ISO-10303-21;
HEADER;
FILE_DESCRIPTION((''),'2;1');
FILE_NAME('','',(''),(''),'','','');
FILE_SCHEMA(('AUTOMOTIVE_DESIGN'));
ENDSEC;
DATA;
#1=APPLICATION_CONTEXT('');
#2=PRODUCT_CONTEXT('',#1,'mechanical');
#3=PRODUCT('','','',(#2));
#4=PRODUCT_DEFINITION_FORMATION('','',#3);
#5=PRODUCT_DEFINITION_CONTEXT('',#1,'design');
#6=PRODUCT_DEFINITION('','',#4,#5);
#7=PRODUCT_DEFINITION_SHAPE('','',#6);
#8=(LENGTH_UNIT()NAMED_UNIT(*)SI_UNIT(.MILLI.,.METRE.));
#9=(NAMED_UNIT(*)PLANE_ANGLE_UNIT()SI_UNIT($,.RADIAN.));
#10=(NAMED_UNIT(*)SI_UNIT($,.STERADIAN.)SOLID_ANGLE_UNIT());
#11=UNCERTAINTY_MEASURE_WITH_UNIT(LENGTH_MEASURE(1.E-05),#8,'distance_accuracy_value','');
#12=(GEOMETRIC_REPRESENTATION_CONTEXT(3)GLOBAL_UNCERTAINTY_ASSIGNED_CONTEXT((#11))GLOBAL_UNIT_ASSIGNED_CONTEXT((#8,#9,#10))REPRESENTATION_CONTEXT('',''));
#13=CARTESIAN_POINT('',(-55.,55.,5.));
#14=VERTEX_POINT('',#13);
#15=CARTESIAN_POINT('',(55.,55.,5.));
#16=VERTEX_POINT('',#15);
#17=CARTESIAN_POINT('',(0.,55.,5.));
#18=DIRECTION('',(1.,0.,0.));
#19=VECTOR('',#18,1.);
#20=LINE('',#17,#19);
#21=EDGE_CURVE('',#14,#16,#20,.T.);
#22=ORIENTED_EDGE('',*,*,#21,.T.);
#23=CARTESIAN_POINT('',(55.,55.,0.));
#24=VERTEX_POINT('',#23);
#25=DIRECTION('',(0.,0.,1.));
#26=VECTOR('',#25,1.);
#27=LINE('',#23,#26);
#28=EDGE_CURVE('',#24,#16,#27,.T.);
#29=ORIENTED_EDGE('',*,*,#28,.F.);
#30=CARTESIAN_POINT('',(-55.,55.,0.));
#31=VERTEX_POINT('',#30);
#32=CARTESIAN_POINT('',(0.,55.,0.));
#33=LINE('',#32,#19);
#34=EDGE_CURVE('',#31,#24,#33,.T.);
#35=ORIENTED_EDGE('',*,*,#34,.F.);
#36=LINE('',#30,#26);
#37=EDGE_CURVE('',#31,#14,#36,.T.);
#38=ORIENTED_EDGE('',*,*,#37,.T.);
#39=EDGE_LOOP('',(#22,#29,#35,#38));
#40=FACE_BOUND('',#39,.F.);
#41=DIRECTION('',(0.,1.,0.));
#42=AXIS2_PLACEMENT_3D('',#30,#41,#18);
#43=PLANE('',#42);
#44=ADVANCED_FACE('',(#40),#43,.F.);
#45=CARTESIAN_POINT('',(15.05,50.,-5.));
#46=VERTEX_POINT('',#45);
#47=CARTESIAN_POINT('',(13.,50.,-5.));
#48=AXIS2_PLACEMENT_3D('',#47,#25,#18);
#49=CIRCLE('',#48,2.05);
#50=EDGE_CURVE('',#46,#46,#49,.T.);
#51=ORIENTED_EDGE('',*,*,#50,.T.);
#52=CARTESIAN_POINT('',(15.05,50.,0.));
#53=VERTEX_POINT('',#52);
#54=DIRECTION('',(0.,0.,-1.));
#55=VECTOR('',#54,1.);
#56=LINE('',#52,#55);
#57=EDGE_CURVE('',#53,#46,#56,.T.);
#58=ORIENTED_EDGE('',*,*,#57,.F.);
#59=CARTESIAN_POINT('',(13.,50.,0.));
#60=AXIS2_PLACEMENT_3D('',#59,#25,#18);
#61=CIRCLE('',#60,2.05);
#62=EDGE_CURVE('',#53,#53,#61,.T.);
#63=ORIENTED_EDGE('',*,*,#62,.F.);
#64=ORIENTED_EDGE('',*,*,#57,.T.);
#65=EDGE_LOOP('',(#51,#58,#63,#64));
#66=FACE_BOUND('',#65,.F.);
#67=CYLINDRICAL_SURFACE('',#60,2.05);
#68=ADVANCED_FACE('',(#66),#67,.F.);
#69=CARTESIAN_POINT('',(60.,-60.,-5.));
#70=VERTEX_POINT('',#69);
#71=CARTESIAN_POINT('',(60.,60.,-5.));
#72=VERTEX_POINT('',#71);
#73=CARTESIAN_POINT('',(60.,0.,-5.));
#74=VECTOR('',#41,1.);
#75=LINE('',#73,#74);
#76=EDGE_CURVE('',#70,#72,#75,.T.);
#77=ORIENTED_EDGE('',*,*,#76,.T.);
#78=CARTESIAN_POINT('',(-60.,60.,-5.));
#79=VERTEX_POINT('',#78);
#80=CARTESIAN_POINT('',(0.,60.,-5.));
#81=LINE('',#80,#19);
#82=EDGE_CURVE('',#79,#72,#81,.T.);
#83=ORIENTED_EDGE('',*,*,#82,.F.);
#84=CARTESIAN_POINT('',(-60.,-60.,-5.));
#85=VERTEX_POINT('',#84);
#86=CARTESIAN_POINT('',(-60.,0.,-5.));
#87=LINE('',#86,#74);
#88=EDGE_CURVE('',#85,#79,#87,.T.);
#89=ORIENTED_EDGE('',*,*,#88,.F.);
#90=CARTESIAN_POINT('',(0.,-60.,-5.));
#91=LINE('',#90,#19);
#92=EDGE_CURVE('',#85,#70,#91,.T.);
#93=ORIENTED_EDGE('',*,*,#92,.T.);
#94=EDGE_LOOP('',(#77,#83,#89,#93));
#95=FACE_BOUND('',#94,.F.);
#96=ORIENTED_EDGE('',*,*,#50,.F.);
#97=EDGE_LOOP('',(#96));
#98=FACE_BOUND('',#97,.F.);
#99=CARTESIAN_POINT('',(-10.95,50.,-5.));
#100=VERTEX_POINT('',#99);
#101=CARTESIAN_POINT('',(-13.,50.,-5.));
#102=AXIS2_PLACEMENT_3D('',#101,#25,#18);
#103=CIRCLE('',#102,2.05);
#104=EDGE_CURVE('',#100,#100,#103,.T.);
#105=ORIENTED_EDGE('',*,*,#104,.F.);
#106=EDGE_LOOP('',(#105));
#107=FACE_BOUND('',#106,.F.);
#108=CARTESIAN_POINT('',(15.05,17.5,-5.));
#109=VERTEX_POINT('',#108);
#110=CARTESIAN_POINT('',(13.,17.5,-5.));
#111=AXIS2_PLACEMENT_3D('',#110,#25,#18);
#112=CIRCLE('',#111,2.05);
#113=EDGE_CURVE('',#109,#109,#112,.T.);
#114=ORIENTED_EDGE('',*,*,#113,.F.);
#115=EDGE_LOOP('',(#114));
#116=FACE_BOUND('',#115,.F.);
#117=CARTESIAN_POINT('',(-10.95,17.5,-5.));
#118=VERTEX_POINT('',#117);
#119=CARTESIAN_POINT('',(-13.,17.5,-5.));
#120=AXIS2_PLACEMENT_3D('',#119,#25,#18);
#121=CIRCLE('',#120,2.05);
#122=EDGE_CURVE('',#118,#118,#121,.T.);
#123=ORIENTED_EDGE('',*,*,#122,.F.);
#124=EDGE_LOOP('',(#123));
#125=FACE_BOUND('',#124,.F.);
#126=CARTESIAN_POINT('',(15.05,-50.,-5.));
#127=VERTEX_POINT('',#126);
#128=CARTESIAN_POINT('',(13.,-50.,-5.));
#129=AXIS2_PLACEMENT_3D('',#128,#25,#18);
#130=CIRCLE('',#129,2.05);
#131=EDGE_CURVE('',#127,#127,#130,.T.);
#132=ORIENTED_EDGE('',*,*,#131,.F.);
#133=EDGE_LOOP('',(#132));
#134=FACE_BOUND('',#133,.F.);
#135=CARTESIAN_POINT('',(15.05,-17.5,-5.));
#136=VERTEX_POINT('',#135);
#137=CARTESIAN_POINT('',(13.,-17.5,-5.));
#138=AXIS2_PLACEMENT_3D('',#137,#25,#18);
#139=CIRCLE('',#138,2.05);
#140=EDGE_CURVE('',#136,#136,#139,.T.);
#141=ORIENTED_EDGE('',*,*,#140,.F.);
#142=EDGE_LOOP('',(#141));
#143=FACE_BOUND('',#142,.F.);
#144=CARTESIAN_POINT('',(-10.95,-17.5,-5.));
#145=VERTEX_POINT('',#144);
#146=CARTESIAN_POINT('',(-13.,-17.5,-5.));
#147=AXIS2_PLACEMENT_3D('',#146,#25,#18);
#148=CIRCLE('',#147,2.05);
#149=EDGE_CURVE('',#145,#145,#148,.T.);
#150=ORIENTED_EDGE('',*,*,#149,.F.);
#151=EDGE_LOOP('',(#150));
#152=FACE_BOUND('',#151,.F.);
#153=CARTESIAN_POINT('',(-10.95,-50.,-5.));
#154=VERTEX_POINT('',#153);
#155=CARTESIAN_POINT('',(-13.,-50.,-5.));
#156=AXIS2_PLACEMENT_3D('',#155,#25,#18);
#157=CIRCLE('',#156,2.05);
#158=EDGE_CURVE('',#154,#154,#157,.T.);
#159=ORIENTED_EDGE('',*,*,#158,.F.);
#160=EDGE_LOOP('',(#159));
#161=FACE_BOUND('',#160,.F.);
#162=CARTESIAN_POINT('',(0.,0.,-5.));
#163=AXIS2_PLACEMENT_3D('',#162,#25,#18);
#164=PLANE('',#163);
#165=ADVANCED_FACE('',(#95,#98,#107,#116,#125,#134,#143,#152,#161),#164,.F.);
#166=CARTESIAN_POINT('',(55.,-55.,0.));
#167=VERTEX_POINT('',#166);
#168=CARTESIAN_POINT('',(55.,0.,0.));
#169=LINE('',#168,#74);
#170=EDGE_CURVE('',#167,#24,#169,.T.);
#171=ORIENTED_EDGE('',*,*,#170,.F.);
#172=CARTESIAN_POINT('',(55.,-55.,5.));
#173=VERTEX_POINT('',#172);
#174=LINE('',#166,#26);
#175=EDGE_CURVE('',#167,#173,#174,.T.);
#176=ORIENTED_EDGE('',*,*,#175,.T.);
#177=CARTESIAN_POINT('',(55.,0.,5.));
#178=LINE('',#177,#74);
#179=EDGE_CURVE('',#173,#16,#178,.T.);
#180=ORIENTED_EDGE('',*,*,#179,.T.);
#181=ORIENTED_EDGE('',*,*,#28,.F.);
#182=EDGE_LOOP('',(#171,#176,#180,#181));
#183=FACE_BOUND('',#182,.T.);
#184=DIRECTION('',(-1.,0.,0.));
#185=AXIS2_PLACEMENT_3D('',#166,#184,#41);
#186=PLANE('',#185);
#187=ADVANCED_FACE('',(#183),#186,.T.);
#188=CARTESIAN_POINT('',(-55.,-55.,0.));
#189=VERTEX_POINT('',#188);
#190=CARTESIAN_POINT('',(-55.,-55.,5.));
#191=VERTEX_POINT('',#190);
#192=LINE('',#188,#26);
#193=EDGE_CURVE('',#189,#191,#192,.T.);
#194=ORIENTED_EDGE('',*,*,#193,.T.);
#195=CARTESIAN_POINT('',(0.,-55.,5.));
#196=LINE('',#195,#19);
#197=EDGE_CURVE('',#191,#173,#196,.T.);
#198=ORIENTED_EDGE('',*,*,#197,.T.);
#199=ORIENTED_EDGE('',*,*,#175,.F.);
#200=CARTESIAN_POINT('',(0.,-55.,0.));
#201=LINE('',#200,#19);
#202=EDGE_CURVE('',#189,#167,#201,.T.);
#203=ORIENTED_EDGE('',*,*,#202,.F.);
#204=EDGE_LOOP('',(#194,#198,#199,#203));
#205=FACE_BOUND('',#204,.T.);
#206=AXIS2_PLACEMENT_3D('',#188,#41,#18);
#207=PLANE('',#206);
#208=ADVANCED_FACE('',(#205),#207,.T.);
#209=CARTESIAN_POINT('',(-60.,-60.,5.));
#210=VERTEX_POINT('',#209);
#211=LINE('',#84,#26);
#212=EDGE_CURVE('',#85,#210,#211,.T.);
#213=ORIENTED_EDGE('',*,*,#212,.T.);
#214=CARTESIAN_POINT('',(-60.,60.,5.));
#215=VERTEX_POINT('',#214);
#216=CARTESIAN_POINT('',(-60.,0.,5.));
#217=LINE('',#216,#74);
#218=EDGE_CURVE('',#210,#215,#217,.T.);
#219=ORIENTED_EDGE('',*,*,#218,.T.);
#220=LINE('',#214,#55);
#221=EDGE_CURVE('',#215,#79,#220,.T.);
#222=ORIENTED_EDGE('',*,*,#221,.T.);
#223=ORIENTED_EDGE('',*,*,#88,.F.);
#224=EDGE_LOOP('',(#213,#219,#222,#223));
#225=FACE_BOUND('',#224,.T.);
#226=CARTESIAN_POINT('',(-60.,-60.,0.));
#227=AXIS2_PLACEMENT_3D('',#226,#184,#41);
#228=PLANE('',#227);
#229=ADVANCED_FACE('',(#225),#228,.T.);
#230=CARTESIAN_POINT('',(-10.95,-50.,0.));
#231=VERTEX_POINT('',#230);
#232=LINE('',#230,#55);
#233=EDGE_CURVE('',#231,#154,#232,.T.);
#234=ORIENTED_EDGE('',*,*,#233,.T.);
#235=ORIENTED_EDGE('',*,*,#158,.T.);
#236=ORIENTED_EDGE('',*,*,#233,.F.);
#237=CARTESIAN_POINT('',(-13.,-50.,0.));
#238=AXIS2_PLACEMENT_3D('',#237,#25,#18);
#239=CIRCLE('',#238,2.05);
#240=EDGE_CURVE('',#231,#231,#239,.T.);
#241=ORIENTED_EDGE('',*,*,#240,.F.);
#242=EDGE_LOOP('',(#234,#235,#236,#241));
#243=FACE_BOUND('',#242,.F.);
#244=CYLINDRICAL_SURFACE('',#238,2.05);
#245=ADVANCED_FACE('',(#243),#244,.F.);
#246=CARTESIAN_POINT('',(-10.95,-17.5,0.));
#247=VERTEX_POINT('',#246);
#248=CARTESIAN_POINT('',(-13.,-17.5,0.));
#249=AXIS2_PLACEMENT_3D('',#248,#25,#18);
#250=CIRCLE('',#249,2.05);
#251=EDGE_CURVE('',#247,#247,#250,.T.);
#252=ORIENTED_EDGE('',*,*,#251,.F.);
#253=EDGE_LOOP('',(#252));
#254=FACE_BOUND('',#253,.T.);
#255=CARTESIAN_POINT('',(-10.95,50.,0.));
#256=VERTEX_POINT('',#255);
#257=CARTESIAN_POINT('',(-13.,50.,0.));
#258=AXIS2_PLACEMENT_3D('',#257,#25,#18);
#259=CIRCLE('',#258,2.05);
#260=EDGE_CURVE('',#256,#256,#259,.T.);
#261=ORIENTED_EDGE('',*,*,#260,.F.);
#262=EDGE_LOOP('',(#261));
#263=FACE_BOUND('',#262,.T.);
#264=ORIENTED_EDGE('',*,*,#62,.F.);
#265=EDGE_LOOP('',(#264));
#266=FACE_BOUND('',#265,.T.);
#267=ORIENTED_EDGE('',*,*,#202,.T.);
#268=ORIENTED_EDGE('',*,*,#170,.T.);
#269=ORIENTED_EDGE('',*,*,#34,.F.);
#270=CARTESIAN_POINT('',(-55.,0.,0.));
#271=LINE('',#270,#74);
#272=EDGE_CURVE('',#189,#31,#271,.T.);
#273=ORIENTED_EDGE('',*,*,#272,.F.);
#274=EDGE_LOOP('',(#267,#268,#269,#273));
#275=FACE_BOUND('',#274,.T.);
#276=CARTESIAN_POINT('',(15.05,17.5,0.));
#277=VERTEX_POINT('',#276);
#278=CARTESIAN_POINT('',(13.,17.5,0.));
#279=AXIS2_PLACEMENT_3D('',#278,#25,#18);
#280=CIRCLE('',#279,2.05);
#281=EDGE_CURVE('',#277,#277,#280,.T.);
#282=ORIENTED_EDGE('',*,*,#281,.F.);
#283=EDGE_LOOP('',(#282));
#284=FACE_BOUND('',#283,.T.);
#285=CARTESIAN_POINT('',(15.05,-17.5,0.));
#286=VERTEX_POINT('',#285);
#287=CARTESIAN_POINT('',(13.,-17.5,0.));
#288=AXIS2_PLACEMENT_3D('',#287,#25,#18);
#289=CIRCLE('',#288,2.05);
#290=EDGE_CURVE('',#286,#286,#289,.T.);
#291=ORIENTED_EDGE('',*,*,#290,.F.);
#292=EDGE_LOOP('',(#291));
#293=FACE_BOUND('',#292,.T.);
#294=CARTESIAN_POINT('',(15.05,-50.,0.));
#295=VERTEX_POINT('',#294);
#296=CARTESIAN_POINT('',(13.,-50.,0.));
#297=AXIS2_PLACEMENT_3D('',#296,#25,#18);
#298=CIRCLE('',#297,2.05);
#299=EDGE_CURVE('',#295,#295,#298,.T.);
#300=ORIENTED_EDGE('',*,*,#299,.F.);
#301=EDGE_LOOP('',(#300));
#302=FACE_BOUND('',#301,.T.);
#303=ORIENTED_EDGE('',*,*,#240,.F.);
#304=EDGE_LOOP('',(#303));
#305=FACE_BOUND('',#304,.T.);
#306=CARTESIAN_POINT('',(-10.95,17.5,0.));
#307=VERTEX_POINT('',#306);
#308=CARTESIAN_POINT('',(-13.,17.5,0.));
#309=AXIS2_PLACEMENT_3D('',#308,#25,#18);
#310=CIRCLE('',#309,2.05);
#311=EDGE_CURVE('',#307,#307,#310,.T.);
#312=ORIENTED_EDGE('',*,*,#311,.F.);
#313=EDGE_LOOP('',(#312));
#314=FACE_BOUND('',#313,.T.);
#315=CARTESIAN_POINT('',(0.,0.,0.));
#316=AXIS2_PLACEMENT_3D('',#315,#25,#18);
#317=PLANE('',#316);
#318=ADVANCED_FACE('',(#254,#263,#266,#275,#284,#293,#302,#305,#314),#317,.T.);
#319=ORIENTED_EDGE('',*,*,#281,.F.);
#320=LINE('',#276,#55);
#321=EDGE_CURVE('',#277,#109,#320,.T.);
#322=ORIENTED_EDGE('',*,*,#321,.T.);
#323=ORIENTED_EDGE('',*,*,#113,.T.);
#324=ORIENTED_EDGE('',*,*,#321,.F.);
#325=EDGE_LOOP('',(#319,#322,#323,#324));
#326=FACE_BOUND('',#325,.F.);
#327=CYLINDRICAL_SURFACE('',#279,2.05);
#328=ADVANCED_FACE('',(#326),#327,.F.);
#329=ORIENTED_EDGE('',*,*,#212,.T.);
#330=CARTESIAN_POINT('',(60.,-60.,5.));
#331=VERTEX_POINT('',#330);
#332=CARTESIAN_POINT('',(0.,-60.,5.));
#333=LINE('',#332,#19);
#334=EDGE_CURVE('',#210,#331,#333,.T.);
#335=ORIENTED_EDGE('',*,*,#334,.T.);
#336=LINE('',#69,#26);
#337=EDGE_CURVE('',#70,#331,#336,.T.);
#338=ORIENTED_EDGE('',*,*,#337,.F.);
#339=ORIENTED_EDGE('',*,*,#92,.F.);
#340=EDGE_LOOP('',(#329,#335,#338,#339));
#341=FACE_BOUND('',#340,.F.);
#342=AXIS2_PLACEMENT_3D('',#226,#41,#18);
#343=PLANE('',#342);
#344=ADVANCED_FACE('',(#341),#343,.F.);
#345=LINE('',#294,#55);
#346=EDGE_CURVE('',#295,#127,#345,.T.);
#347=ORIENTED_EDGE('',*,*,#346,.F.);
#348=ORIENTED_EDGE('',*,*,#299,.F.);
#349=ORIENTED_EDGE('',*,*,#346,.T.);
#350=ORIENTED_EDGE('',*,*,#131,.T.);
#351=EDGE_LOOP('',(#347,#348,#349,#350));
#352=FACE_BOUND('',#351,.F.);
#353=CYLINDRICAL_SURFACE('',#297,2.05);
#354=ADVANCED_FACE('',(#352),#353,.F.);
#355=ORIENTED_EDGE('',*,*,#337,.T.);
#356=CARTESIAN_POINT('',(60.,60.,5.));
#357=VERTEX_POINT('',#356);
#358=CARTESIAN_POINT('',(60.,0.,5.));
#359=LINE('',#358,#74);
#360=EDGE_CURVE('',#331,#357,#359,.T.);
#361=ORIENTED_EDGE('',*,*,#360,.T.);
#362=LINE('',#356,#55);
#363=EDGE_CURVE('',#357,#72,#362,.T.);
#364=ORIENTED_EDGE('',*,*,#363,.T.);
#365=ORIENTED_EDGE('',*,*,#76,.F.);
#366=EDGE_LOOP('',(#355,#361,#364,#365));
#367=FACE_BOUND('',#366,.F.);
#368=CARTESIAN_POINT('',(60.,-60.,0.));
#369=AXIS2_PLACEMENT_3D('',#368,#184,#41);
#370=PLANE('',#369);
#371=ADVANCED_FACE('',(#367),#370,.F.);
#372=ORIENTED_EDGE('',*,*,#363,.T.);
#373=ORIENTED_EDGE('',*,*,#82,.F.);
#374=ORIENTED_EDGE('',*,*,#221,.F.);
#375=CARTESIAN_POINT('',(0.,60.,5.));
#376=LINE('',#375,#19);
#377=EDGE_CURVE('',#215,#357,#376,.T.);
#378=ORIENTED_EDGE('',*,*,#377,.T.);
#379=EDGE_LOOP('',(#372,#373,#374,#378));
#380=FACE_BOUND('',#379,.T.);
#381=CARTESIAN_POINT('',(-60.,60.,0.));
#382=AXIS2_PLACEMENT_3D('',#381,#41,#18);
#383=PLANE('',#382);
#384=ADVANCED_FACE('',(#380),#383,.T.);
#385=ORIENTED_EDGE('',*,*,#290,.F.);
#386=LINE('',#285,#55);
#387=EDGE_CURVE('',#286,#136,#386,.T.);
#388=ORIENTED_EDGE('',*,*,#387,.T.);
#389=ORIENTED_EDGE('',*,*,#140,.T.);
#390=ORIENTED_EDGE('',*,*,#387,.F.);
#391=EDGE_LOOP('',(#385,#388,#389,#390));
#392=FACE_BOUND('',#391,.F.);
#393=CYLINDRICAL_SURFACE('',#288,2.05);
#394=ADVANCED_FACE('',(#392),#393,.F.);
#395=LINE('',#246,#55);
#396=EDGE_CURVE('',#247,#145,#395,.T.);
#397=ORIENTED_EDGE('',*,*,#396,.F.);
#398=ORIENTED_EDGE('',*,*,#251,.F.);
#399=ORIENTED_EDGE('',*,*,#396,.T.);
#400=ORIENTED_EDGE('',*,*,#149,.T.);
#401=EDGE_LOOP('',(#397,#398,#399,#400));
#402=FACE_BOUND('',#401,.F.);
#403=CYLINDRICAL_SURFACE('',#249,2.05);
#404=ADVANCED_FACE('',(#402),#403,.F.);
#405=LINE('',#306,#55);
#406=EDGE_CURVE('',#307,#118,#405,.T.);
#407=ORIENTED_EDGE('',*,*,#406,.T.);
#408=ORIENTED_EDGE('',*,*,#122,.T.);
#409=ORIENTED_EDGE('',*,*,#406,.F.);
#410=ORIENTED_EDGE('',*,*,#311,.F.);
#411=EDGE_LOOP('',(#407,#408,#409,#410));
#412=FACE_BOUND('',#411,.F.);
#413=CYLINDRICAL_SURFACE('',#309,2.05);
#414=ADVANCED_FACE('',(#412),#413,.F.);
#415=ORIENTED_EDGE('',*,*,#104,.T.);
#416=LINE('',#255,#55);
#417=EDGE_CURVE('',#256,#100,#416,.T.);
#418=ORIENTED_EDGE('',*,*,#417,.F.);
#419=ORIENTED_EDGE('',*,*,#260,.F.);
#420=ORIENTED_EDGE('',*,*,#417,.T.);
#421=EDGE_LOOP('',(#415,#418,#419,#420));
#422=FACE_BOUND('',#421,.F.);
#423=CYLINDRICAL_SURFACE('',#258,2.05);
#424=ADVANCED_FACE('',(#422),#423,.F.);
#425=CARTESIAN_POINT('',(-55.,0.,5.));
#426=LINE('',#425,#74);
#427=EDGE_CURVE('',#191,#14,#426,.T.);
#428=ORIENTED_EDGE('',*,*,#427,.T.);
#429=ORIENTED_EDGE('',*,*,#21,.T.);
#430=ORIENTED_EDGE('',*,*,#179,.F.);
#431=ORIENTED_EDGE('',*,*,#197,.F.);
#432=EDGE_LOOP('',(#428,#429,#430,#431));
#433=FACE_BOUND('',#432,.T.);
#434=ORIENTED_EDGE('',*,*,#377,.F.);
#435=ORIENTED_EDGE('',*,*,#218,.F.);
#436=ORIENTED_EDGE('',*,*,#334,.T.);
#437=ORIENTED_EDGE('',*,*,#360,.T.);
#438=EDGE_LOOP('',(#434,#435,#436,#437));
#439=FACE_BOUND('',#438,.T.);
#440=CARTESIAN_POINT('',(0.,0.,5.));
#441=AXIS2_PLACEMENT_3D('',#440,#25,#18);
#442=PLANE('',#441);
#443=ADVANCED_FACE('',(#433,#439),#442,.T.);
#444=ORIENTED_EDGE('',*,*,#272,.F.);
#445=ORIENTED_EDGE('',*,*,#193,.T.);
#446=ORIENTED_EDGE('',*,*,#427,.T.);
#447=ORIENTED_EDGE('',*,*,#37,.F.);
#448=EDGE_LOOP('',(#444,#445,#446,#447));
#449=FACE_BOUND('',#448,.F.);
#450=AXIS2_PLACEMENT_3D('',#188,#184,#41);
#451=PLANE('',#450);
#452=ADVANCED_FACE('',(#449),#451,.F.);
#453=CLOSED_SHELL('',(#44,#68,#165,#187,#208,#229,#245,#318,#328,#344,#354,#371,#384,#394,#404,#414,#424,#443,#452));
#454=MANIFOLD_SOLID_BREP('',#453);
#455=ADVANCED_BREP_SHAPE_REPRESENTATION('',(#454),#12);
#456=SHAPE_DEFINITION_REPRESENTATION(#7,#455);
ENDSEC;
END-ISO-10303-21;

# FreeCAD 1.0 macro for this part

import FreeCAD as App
import Part
import Sketcher
from FreeCAD import Vector
Q = App.Units.Quantity


def add_polygon(sketch, points):
    """Adds a closed chain of lines whose ends are joined by coincident constraints."""
    first, n = sketch.GeometryCount, len(points)
    for a, b in zip(points, points[1:] + points[:1]):
        sketch.addGeometry(Part.LineSegment(App.Vector(*a, 0), App.Vector(*b, 0)), False)
    for i in range(n):
        sketch.addConstraint(Sketcher.Constraint("Coincident", first + i, 2, first + (i + 1) % n, 1))

doc = App.newDocument("Part")
params = doc.addObject("Spreadsheet::Sheet", "Params")
for row, (alias, value) in enumerate([
    ("sketch1_diameter", "4.1 mm"),
    ("sketch1_width", "120 mm"),
    ("pad1_length", "5 mm"),
    ("sketch2_width", "120 mm"),
    ("sketch2_width2", "110 mm"),
    ("pad2_length", "5 mm"),
], start=1):
    params.set(f"A{row}", alias)
    params.set(f"B{row}", "=" + value)
    params.setAlias(f"B{row}", alias)

body = doc.addObject("PartDesign::Body", "Body")

sketch1 = body.newObject("Sketcher::SketchObject", "Sketch")
sketch1.AttachmentSupport = (doc.getObject("XY_Plane"), [""])
sketch1.MapMode = "FlatFace"
add_polygon(sketch1, [(-60, 60), (-60, -60), (60, -60), (60, 60)])
sketch1.addGeometry(Part.Circle(Vector(-13, -50, 0), Vector(0, 0, 1), 2.05), False)
sketch1.addGeometry(Part.Circle(Vector(-13, -17.5, 0), Vector(0, 0, 1), 2.05), False)
sketch1.addGeometry(Part.Circle(Vector(13, -50, 0), Vector(0, 0, 1), 2.05), False)
sketch1.addGeometry(Part.Circle(Vector(13, -17.5, 0), Vector(0, 0, 1), 2.05), False)
sketch1.addGeometry(Part.Circle(Vector(-13, 17.5, 0), Vector(0, 0, 1), 2.05), False)
sketch1.addGeometry(Part.Circle(Vector(-13, 50, 0), Vector(0, 0, 1), 2.05), False)
sketch1.addGeometry(Part.Circle(Vector(13, 17.5, 0), Vector(0, 0, 1), 2.05), False)
sketch1.addGeometry(Part.Circle(Vector(13, 50, 0), Vector(0, 0, 1), 2.05), False)
sketch1.addConstraint([
    Sketcher.Constraint("Vertical", 0),
    Sketcher.Constraint("Horizontal", 1),
    Sketcher.Constraint("Vertical", 2),
    Sketcher.Constraint("Horizontal", 3),
    Sketcher.Constraint("Equal", 4, 5),
    Sketcher.Constraint("Equal", 5, 6),
    Sketcher.Constraint("Equal", 6, 7),
    Sketcher.Constraint("Equal", 7, 8),
    Sketcher.Constraint("Equal", 8, 9),
    Sketcher.Constraint("Equal", 9, 10),
    Sketcher.Constraint("Equal", 10, 11),
    Sketcher.Constraint("Symmetric", 7, 3, 8, 3, -1, 1),
    Sketcher.Constraint("Symmetric", 6, 3, 9, 3, -1, 1),
    Sketcher.Constraint("Symmetric", 5, 3, 10, 3, -1, 1),
    Sketcher.Constraint("Symmetric", 4, 3, 11, 3, -1, 1),
    Sketcher.Constraint("Symmetric", 0, 2, 2, 2, -1, 1),
    Sketcher.Constraint("Symmetric", 4, 3, 6, 3, -2),
    Sketcher.Constraint("Symmetric", 5, 3, 7, 3, -2),
    Sketcher.Constraint("Vertical", 4, 3, 5, 3),
    Sketcher.Constraint("Equal", 3, 0),
    Sketcher.Constraint("Diameter", 4, Q("4.1 mm")),
    Sketcher.Constraint("DistanceX", 1, 1, 1, 2, Q("120 mm")),
    Sketcher.Constraint("DistanceX", 4, 3, -1, 1, Q("13 mm")),
    Sketcher.Constraint("DistanceY", 4, 3, -1, 1, Q("50 mm")),
    Sketcher.Constraint("DistanceY", 5, 3, 8, 3, Q("35 mm")),
])
sketch1.setExpression("Constraints[24]", "Params.sketch1_diameter")
sketch1.setExpression("Constraints[25]", "Params.sketch1_width")
pad1 = body.newObject("PartDesign::Pad", "Pad")
pad1.Profile = sketch1
pad1.setExpression("Length", "Params.pad1_length")
pad1.Reversed = True

sketch2 = body.newObject("Sketcher::SketchObject", "Sketch001")
sketch2.AttachmentSupport = (doc.getObject("XY_Plane"), [""])
sketch2.MapMode = "FlatFace"
add_polygon(sketch2, [(-60, 60), (-60, -60), (60, -60), (60, 60)])
add_polygon(sketch2, [(55, -55), (-55, -55), (-55, 55), (55, 55)])
sketch2.addConstraint([
    Sketcher.Constraint("Vertical", 0),
    Sketcher.Constraint("Horizontal", 1),
    Sketcher.Constraint("Vertical", 2),
    Sketcher.Constraint("Horizontal", 3),
    Sketcher.Constraint("Horizontal", 4),
    Sketcher.Constraint("Vertical", 5),
    Sketcher.Constraint("Horizontal", 6),
    Sketcher.Constraint("Vertical", 7),
    Sketcher.Constraint("Symmetric", 0, 2, 2, 2, -1, 1),
    Sketcher.Constraint("Symmetric", 4, 2, 6, 2, -1, 1),
    Sketcher.Constraint("Equal", 3, 0),
    Sketcher.Constraint("Equal", 6, 5),
    Sketcher.Constraint("DistanceX", 1, 1, 1, 2, Q("120 mm")),
    Sketcher.Constraint("DistanceX", 4, 2, 4, 1, Q("110 mm")),
])
sketch2.setExpression("Constraints[20]", "Params.sketch2_width")
sketch2.setExpression("Constraints[21]", "Params.sketch2_width2")
pad2 = body.newObject("PartDesign::Pad", "Pad001")
pad2.Profile = sketch2
pad2.setExpression("Length", "Params.pad2_length")

doc.recompute()
